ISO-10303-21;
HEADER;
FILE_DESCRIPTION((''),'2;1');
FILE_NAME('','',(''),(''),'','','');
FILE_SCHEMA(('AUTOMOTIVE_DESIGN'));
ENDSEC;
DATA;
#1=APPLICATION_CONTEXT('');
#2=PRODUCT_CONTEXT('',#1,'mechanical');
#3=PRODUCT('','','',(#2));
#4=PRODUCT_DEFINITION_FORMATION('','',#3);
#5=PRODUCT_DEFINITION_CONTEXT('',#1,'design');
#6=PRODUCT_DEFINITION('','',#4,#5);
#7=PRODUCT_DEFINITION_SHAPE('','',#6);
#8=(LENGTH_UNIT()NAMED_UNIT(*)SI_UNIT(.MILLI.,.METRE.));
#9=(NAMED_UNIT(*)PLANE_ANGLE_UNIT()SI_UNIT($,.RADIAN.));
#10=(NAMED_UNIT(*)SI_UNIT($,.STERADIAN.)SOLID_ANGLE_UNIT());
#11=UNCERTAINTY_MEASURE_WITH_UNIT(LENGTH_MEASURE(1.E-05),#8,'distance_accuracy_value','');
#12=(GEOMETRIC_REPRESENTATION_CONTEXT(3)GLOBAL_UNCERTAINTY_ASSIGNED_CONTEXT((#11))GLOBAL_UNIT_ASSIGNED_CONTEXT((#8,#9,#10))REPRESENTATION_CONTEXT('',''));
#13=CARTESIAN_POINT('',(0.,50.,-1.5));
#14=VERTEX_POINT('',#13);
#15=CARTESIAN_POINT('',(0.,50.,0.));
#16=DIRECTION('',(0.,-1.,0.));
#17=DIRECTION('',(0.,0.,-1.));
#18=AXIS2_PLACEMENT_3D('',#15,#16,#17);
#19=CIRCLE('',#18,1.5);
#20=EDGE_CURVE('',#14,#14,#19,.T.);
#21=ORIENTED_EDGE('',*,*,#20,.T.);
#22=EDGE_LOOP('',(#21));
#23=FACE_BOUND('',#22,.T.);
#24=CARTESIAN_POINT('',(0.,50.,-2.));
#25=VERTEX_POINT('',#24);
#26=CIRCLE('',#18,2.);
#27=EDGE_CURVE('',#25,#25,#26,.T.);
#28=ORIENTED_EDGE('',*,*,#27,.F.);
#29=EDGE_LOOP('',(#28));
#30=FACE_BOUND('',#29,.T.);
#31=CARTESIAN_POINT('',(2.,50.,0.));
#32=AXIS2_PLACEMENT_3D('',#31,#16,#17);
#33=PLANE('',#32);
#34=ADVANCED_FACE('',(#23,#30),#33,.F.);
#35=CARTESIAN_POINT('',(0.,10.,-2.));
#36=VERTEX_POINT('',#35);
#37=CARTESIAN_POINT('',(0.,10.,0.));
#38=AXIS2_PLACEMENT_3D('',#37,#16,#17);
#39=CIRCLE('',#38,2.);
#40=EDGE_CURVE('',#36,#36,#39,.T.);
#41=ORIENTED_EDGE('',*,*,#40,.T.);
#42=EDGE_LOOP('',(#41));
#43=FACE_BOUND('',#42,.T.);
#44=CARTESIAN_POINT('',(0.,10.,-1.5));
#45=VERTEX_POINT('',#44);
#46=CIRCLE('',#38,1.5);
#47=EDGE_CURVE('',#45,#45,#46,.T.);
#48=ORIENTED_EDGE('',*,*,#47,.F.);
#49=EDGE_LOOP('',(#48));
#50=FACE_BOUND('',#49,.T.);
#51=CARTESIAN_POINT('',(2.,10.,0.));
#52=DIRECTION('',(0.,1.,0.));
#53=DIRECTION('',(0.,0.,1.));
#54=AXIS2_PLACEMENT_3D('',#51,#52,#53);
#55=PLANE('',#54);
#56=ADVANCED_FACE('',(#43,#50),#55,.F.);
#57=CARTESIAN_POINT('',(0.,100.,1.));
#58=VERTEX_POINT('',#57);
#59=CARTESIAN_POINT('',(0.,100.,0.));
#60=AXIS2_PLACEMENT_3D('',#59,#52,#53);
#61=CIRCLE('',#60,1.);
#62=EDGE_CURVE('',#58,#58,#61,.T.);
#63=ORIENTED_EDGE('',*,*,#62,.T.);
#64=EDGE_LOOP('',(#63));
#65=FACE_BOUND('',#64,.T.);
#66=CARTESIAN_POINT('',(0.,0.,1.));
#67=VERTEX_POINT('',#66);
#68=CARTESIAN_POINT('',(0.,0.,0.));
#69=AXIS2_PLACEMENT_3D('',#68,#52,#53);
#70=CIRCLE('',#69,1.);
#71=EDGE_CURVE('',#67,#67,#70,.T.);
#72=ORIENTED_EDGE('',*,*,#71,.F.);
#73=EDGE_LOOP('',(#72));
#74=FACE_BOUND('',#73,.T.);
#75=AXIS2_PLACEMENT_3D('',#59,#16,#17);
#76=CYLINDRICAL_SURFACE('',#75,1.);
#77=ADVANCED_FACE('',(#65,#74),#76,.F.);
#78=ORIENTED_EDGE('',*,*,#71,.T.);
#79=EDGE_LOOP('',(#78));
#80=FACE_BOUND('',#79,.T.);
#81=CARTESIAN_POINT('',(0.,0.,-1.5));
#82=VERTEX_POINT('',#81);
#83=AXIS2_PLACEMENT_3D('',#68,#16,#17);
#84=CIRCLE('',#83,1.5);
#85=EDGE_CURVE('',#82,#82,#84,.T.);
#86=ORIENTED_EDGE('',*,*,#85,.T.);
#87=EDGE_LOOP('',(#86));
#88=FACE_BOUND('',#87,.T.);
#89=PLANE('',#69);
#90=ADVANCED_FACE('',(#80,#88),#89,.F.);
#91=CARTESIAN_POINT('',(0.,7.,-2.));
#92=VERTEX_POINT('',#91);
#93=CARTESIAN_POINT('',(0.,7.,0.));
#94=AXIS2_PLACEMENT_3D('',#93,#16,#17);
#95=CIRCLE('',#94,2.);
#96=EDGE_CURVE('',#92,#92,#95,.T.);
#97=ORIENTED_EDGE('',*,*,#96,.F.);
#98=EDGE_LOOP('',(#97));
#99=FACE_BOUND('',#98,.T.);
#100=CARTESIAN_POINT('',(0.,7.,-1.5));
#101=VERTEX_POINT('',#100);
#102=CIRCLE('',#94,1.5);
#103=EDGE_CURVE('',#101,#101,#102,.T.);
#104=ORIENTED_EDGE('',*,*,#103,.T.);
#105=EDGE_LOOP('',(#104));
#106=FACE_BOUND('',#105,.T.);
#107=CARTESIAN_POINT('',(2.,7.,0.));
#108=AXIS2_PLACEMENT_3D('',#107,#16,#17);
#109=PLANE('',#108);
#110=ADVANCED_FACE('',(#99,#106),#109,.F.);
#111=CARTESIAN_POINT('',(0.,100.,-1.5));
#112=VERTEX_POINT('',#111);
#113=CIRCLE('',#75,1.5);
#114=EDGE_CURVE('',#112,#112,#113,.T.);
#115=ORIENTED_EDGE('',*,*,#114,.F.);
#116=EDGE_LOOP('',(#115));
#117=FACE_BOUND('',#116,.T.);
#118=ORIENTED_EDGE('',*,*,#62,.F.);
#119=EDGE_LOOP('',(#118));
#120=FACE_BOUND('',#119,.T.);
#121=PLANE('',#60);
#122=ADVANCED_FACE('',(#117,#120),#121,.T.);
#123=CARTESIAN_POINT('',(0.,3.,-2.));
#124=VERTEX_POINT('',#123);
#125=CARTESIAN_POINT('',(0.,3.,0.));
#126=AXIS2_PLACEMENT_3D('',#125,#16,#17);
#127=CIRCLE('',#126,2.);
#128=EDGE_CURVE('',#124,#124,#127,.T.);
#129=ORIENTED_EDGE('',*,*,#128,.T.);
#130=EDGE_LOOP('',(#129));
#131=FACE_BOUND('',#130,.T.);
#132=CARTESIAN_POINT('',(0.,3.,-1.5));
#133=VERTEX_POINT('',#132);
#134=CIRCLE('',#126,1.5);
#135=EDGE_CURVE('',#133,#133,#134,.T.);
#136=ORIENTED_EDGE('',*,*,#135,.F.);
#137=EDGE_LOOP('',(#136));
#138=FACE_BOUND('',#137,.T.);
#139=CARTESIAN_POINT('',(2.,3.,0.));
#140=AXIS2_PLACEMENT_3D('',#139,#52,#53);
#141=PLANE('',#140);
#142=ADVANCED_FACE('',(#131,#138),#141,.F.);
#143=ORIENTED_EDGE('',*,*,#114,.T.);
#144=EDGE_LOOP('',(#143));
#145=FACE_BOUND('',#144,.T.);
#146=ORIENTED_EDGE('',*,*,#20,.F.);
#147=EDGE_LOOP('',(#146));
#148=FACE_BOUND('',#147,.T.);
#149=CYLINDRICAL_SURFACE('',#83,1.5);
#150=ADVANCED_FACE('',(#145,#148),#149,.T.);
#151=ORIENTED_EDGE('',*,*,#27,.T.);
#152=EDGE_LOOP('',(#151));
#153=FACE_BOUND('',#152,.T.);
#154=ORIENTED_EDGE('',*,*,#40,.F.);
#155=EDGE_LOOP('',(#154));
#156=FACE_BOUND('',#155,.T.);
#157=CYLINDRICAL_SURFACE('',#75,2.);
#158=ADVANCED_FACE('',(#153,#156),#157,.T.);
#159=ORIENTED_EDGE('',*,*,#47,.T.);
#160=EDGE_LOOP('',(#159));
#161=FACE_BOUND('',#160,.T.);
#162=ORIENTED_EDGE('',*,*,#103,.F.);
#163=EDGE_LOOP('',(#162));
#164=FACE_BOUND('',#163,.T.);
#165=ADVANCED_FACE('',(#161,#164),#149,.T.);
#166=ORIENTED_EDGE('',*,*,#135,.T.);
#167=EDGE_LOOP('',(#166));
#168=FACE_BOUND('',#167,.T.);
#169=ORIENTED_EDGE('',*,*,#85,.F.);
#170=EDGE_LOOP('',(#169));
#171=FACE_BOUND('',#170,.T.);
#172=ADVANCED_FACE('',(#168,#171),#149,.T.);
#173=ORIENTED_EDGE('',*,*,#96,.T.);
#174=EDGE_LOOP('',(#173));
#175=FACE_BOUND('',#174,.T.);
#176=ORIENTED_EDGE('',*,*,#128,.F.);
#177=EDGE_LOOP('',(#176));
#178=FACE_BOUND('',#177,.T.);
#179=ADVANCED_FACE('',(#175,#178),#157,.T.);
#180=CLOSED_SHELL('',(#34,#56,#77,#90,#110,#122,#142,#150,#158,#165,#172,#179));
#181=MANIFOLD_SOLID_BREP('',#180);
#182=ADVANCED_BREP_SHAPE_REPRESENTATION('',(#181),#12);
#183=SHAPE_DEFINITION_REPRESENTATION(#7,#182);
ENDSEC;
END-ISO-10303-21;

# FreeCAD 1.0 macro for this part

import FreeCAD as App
import Part
import Sketcher
from FreeCAD import Vector


def add_polygon(sketch, points):
    """Adds a closed chain of lines whose ends are joined by coincident constraints."""
    first, n = sketch.GeometryCount, len(points)
    for a, b in zip(points, points[1:] + points[:1]):
        sketch.addGeometry(Part.LineSegment(App.Vector(*a, 0), App.Vector(*b, 0)), False)
    for i in range(n):
        sketch.addConstraint(Sketcher.Constraint("Coincident", first + i, 2, first + (i + 1) % n, 1))

doc = App.newDocument("Part")
body = doc.addObject("PartDesign::Body", "Body")

sketch1 = body.newObject("Sketcher::SketchObject", "Sketch")
sketch1.AttachmentSupport = (doc.getObject("XZ_Plane"), [""])
sketch1.MapMode = "FlatFace"
sketch1.addGeometry(Part.Circle(Vector(0, 0, 0), Vector(0, 0, 1), 2), False)
sketch1.addGeometry(Part.Circle(Vector(0, 0, 0), Vector(0, 0, 1), 1), False)
sketch1.addConstraint(Sketcher.Constraint("Coincident", 0, 3, -1, 1))
sketch1.addConstraint(Sketcher.Constraint("Coincident", 1, 3, -1, 1))
sketch1.addConstraint(Sketcher.Constraint("Diameter", 0, 4.0))
sketch1.addConstraint(Sketcher.Constraint("Diameter", 1, 2.0))
pad1 = body.newObject("PartDesign::Pad", "Pad")
pad1.Profile = sketch1
pad1.Length = 100
pad1.Reversed = True

sketch2 = body.newObject("Sketcher::SketchObject", "Sketch001")
sketch2.AttachmentSupport = (doc.getObject("XY_Plane"), [""])
sketch2.MapMode = "FlatFace"
add_polygon(sketch2, [(1.5, 3), (1.5, 0), (2, 0), (2, 3)])
add_polygon(sketch2, [(1.5, 10), (1.5, 7), (2, 7), (2, 10)])
sketch2.addConstraint(Sketcher.Constraint("Vertical", 0))
sketch2.addConstraint(Sketcher.Constraint("Horizontal", 1))
sketch2.addConstraint(Sketcher.Constraint("Vertical", 2))
sketch2.addConstraint(Sketcher.Constraint("Horizontal", 3))
sketch2.addConstraint(Sketcher.Constraint("Vertical", 4))
sketch2.addConstraint(Sketcher.Constraint("Horizontal", 5))
sketch2.addConstraint(Sketcher.Constraint("Vertical", 6))
sketch2.addConstraint(Sketcher.Constraint("Horizontal", 7))
sketch2.addConstraint(Sketcher.Constraint("PointOnObject", 0, 2, -1))
sketch2.addConstraint(Sketcher.Constraint("Vertical", 3, 2, 4, 2))
sketch2.addConstraint(Sketcher.Constraint("Vertical", 2, 2, 5, 2))
sketch2.addConstraint(Sketcher.Constraint("Equal", 2, 4))
sketch2.addConstraint(Sketcher.Constraint("DistanceY", 0, 2, 0, 1, 3.0))
sketch2.addConstraint(Sketcher.Constraint("DistanceX", 1, 1, 1, 2, 0.5))
sketch2.addConstraint(Sketcher.Constraint("DistanceX", -1, 1, 1, 2, 2.0))
sketch2.addConstraint(Sketcher.Constraint("DistanceY", -1, 1, 4, 2, 7.0))
groove = body.newObject("PartDesign::Groove", "Groove")
groove.Profile = sketch2
groove.ReferenceAxis = (sketch2, ["V_Axis"])
groove.Angle = 360

sketch3 = body.newObject("Sketcher::SketchObject", "Sketch002")
sketch3.AttachmentSupport = (doc.getObject("XY_Plane"), [""])
sketch3.MapMode = "FlatFace"
add_polygon(sketch3, [(1.5, 100), (1.5, 50), (2, 50), (2, 100)])
sketch3.addConstraint(Sketcher.Constraint("Vertical", 0))
sketch3.addConstraint(Sketcher.Constraint("Horizontal", 1))
sketch3.addConstraint(Sketcher.Constraint("Vertical", 2))
sketch3.addConstraint(Sketcher.Constraint("Horizontal", 3))
sketch3.addConstraint(Sketcher.Constraint("DistanceY", 0, 2, 0, 1, 50.0))
sketch3.addConstraint(Sketcher.Constraint("DistanceX", 1, 1, 1, 2, 0.5))
sketch3.addConstraint(Sketcher.Constraint("DistanceY", -1, 1, 0, 2, 50.0))
sketch3.addConstraint(Sketcher.Constraint("DistanceX", -1, 1, 1, 2, 2.0))
groove2 = body.newObject("PartDesign::Groove", "Groove001")
groove2.Profile = sketch3
groove2.ReferenceAxis = (sketch3, ["V_Axis"])
groove2.Angle = 360

doc.recompute()
